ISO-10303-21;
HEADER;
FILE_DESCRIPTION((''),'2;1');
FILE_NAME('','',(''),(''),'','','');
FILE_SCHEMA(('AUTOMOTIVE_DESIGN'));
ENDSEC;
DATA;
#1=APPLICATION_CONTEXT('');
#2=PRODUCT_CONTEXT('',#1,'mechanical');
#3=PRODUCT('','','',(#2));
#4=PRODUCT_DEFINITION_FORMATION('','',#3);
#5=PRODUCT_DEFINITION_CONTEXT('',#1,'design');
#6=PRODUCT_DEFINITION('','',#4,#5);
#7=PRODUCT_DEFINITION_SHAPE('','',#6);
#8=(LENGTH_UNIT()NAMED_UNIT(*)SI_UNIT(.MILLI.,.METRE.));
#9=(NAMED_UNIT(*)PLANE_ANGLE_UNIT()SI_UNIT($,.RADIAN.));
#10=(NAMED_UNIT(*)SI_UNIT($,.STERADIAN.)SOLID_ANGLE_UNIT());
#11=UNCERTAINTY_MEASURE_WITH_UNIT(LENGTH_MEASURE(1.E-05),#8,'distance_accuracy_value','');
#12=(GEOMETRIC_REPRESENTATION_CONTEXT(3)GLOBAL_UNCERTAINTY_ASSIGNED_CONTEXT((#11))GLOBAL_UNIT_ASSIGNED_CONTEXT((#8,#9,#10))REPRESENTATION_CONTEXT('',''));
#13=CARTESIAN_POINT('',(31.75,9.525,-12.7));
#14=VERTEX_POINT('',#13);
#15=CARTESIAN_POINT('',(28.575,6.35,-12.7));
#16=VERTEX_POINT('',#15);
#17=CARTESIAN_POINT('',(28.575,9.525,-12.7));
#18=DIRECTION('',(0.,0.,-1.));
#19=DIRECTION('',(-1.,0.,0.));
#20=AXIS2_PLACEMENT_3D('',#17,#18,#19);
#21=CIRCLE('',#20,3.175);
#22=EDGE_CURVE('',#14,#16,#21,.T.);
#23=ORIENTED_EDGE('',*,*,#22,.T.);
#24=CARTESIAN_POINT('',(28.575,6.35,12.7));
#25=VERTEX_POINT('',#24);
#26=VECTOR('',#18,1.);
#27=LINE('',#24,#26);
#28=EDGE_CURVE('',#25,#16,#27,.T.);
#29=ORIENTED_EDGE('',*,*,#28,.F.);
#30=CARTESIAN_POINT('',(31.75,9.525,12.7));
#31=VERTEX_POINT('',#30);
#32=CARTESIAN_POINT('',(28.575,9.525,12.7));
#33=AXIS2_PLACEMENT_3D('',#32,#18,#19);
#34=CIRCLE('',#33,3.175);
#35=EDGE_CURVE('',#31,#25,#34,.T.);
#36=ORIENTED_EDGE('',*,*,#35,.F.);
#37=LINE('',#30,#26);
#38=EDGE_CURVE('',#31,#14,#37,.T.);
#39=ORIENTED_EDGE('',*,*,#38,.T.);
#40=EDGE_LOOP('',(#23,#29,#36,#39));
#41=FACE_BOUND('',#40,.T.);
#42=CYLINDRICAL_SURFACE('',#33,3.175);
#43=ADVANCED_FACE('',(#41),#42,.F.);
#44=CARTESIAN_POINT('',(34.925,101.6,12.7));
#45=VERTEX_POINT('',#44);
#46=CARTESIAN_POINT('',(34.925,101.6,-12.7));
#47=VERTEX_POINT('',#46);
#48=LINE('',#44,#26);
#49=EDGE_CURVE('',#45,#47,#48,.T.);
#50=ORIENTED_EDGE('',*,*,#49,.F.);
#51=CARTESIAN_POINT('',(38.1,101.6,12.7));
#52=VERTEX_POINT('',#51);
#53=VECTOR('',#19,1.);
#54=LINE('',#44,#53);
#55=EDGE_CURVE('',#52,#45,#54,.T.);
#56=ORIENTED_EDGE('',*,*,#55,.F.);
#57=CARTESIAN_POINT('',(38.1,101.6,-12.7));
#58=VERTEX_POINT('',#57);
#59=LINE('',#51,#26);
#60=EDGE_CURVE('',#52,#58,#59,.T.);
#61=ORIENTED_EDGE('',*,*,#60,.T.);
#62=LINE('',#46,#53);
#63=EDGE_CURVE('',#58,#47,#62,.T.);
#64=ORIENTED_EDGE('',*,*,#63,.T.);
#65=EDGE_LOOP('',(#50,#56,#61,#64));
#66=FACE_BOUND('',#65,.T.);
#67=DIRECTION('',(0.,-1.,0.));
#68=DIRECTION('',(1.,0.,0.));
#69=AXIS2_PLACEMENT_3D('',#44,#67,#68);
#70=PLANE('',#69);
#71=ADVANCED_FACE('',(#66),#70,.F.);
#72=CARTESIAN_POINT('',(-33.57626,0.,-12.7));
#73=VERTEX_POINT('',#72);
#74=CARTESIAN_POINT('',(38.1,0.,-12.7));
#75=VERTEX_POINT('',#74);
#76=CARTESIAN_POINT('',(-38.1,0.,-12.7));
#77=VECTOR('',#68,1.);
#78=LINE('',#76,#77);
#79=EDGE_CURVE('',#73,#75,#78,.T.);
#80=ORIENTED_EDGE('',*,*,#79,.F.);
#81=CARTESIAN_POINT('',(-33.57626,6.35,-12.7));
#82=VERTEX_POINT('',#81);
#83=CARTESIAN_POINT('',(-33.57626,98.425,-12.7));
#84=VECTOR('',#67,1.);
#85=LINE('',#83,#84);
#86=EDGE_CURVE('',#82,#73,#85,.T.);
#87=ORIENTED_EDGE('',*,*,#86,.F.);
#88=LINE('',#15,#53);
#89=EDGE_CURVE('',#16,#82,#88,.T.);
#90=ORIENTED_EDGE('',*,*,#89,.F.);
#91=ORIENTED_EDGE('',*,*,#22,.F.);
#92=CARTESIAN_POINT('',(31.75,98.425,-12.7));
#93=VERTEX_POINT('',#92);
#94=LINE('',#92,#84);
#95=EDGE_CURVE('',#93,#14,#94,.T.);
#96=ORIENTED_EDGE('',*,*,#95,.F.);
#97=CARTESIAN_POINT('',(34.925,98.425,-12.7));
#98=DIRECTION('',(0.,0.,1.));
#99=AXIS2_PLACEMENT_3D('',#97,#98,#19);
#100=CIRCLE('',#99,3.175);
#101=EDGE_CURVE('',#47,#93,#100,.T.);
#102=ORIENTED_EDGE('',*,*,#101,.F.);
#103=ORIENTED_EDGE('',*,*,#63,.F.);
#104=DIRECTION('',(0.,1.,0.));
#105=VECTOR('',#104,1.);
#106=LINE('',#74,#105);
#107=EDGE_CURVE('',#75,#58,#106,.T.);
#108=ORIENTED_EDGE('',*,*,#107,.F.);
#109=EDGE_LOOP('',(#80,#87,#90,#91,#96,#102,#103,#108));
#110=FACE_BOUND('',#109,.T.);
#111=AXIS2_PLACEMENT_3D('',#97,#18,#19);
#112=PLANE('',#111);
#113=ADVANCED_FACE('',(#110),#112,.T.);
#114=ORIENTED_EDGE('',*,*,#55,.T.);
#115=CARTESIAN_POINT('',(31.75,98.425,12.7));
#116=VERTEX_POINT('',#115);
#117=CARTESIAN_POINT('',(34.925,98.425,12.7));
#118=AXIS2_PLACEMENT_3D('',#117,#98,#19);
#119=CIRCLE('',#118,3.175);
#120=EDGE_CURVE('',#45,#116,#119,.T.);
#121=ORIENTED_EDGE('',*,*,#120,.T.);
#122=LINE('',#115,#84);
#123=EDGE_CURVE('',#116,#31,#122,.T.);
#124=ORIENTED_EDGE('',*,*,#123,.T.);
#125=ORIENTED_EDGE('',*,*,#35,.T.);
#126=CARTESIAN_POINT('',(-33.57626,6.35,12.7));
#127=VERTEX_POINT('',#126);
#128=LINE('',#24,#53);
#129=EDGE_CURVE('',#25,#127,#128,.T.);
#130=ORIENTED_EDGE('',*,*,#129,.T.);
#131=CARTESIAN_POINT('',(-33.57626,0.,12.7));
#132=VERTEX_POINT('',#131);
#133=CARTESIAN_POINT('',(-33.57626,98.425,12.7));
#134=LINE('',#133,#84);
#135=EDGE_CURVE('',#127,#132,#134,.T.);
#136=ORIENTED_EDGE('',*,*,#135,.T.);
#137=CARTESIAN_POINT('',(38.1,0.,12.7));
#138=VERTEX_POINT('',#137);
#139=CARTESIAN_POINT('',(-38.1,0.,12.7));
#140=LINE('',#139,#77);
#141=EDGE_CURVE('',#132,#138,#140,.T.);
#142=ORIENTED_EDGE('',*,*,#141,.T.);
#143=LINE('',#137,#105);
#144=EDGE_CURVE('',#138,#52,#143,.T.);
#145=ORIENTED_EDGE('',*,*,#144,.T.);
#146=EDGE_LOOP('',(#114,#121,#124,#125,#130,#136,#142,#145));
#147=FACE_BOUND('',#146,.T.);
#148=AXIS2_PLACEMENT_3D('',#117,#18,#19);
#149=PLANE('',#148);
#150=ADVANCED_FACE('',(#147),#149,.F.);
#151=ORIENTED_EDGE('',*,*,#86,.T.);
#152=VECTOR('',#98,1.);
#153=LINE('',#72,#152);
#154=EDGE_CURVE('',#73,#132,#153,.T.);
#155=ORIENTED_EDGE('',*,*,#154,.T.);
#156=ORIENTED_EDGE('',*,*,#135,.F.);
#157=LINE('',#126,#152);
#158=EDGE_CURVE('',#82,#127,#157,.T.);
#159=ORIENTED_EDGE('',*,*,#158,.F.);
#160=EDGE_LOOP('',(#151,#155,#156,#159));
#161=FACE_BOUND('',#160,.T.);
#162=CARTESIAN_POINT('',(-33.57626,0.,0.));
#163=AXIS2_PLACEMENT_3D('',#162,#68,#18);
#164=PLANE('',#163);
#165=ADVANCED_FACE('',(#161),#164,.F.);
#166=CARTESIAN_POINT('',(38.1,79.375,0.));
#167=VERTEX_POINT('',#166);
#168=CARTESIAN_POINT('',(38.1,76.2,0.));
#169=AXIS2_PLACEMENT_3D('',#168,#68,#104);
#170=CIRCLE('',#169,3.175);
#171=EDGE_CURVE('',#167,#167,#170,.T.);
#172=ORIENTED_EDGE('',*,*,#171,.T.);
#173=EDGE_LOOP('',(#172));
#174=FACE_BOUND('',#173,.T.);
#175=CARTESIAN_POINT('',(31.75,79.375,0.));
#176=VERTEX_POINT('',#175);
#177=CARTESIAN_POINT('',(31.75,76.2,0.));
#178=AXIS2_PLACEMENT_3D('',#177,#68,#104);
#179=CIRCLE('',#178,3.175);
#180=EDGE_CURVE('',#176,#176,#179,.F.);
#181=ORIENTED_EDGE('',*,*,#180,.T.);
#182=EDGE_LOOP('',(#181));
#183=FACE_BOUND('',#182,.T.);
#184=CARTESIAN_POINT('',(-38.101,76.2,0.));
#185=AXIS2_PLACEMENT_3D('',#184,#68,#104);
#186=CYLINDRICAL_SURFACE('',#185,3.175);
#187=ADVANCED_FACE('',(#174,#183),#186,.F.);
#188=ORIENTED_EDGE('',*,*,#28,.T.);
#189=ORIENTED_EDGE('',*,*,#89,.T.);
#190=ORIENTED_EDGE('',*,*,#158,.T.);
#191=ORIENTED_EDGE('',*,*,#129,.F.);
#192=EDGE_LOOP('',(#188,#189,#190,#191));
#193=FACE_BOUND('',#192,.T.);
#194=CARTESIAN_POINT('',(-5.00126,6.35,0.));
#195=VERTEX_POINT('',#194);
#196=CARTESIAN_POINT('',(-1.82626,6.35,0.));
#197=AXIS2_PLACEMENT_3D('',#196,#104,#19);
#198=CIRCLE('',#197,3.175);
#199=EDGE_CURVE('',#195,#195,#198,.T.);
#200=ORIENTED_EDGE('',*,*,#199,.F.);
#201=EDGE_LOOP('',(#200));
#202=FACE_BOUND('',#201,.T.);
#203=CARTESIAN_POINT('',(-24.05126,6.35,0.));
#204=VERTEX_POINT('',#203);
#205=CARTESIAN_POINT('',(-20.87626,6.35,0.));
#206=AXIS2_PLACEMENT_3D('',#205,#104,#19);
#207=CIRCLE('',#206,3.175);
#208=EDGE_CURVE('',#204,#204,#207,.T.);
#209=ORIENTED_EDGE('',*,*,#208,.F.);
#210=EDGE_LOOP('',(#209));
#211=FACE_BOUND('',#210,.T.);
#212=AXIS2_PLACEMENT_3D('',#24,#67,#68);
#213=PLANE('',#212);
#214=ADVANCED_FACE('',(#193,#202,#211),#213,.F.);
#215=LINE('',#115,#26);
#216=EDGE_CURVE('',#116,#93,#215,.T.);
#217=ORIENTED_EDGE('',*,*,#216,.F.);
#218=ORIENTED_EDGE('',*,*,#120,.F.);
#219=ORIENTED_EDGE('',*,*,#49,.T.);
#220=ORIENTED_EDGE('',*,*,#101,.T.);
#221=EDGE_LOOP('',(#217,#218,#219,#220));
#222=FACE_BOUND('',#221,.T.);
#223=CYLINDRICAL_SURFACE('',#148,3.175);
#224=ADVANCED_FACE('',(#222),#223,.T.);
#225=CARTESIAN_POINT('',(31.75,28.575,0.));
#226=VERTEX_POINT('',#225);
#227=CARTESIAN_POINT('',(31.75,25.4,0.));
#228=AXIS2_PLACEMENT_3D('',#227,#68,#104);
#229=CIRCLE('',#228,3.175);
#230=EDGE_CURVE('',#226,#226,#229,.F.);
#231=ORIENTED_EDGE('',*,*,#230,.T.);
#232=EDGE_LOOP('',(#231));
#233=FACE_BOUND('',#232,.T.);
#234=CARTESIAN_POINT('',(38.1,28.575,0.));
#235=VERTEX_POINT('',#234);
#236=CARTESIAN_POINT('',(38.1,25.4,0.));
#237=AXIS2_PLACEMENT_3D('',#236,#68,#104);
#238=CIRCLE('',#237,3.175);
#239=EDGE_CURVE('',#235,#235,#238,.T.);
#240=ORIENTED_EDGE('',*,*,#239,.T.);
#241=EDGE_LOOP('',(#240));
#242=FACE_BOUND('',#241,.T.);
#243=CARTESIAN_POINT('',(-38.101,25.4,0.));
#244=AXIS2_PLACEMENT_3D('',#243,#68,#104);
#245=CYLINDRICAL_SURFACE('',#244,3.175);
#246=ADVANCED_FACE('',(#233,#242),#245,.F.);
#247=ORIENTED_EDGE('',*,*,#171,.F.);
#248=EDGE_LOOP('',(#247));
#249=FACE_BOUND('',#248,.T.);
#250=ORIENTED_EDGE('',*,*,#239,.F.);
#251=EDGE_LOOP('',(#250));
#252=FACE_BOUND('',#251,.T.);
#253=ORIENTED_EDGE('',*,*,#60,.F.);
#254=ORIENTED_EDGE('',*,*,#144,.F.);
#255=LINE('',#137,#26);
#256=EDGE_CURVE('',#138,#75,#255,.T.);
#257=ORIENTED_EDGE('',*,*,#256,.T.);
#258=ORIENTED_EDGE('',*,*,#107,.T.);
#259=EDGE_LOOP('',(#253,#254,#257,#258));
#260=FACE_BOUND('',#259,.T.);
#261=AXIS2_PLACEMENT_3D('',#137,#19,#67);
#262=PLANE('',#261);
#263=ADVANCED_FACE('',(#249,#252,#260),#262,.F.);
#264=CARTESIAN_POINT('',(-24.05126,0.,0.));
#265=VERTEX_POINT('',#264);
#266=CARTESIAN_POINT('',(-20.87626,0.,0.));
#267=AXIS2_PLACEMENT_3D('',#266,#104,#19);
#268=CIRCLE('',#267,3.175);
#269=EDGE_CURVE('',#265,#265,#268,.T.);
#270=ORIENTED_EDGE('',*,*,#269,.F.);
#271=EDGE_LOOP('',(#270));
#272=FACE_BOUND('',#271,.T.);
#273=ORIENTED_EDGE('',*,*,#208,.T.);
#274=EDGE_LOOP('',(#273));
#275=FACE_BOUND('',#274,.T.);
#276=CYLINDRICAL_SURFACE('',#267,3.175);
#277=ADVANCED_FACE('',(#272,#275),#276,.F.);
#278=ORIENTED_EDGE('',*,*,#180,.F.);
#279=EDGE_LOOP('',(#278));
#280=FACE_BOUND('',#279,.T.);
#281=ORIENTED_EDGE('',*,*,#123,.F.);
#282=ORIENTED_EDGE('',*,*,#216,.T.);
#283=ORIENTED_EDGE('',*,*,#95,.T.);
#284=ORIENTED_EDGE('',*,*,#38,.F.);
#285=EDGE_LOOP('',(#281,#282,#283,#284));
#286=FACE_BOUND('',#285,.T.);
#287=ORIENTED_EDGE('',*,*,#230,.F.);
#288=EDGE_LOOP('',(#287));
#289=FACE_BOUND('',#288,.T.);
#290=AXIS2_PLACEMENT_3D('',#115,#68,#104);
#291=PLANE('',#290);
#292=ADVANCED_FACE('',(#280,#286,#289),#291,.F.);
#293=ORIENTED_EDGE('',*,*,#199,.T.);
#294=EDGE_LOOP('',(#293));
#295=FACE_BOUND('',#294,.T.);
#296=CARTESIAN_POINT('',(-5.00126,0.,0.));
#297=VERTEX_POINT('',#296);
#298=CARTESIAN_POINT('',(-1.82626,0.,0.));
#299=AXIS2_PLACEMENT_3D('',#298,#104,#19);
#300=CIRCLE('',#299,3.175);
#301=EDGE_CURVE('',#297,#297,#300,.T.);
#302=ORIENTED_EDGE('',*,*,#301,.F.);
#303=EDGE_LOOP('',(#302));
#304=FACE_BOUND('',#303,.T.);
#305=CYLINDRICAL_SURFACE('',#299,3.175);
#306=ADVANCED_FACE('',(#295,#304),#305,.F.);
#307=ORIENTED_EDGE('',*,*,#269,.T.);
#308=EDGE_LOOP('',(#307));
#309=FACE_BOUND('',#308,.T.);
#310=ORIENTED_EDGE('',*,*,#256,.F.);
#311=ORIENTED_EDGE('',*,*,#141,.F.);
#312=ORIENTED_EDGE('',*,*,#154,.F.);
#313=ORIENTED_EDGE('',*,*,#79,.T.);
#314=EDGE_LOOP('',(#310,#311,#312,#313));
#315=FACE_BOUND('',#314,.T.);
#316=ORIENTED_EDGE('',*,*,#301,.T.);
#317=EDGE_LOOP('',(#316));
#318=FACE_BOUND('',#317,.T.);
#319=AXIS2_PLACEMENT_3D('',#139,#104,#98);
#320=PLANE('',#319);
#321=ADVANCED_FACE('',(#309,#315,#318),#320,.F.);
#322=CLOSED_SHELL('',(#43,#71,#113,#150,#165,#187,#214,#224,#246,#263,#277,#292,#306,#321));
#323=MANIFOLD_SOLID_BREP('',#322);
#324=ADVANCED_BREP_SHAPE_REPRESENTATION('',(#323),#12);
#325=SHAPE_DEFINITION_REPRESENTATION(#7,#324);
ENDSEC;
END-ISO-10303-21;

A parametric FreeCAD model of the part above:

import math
import FreeCAD as App
import Part
import Sketcher
from FreeCAD import Vector
Q = App.Units.Quantity


def add_polygon(sketch, points):
    """Adds a closed chain of lines whose ends are joined by coincident constraints."""
    first, n = sketch.GeometryCount, len(points)
    for a, b in zip(points, points[1:] + points[:1]):
        sketch.addGeometry(Part.LineSegment(App.Vector(*a, 0), App.Vector(*b, 0)), False)
    for i in range(n):
        sketch.addConstraint(Sketcher.Constraint("Coincident", first + i, 2, first + (i + 1) % n, 1))

doc = App.newDocument("Part")
body = doc.addObject("PartDesign::Body", "Body")

sketch1 = body.newObject("Sketcher::SketchObject", "Sketch")
sketch1.AttachmentSupport = (doc.getObject("XY_Plane"), [""])
sketch1.MapMode = "FlatFace"
sketch1.addGeometry([
    Part.LineSegment(Vector(-38.1, 0, 0), Vector(38.1, 0, 0)),
    Part.LineSegment(Vector(38.1, 0, 0), Vector(38.1, 101.6, 0)),
    Part.LineSegment(Vector(38.1, 101.6, 0), Vector(34.9, 101.6, 0)),
    Part.ArcOfCircle(Part.Circle(Vector(34.9, 98.4, 0), Vector(0, 0, 1), 3.2), math.radians(90), math.radians(180)),
    Part.LineSegment(Vector(31.8, 98.4, 0), Vector(31.8, 9.5, 0)),
    Part.ArcOfCircle(Part.Circle(Vector(28.6, 9.5, 0), Vector(0, 0, 1), 3.2), math.radians(-90), math.radians(0)),
    Part.LineSegment(Vector(28.6, 6.3, 0), Vector(-34.9, 6.3, 0)),
    Part.ArcOfCircle(Part.Circle(Vector(-34.9, 3.2, 0), Vector(0, 0, 1), 3.2), math.radians(90), math.radians(180)),
    Part.LineSegment(Vector(-38.1, 3.2, 0), Vector(-38.1, 0, 0)),
], False)
sketch1.addConstraint([
    Sketcher.Constraint("Coincident", 0, 2, 1, 1),
    Sketcher.Constraint("Coincident", 1, 2, 2, 1),
    Sketcher.Constraint("Tangent", 2, 2, 3, 1),
    Sketcher.Constraint("Tangent", 3, 2, 4, 1),
    Sketcher.Constraint("Tangent", 4, 2, 5, 2),
    Sketcher.Constraint("Tangent", 5, 1, 6, 1),
    Sketcher.Constraint("Tangent", 6, 2, 7, 1),
    Sketcher.Constraint("Tangent", 7, 2, 8, 1),
    Sketcher.Constraint("Coincident", 8, 2, 0, 1),
    Sketcher.Constraint("Horizontal", 0),
    Sketcher.Constraint("Vertical", 1),
    Sketcher.Constraint("Horizontal", 2),
    Sketcher.Constraint("Vertical", 4),
    Sketcher.Constraint("Horizontal", 6),
    Sketcher.Constraint("Vertical", 8),
    Sketcher.Constraint("Equal", 3, 5),
    Sketcher.Constraint("Equal", 5, 7),
    Sketcher.Constraint("Symmetric", 0, 2, 8, 2, -1, 1),
    Sketcher.Constraint("Equal", 2, 8),
    Sketcher.Constraint("DistanceX", 0, 1, 0, 2, Q("3 in")),
    Sketcher.Constraint("DistanceY", 1, 1, 1, 2, Q("4 in")),
    Sketcher.Constraint("DistanceX", 6, 2, 6, 1, Q("2.5 in")),
    Sketcher.Constraint("Radius", 3, Q("0.125 in")),
])
pad1 = body.newObject("PartDesign::Pad", "Pad")
pad1.Profile = sketch1
pad1.Length = Q("1 in")
pad1.Midplane = True

sketch2 = body.newObject("Sketcher::SketchObject", "Sketch001")
sketch2.AttachmentSupport = (doc.getObject("YZ_Plane"), [""])
sketch2.MapMode = "FlatFace"
sketch2.AttachmentOffset = App.Placement(Vector(0, 0, 1.5 * 25.4), App.Rotation())
sketch2.addGeometry(Part.Circle(Vector(76.2, 0, 0), Vector(0, 0, 1), 3.2), False)
sketch2.addConstraint([
    Sketcher.Constraint("PointOnObject", 0, 3, -1),
    Sketcher.Constraint("Diameter", 0, Q("0.25 in")),
    Sketcher.Constraint("DistanceX", -1, 1, 0, 3, Q("3 in")),
])
pocket1 = body.newObject("PartDesign::Pocket", "Pocket")
pocket1.Profile = sketch2
pocket1.Type = "UpToFirst"

sketch3 = body.newObject("Sketcher::SketchObject", "Sketch002")
sketch3.AttachmentSupport = (doc.getObject("YZ_Plane"), [""])
sketch3.MapMode = "FlatFace"
sketch3.AttachmentOffset = App.Placement(Vector(0, 0, 1.5 * 25.4), App.Rotation())
sketch3.addGeometry(Part.Circle(Vector(25.4, 0, 0), Vector(0, 0, 1), 3.2), False)
sketch3.addConstraint([
    Sketcher.Constraint("PointOnObject", 0, 3, -1),
    Sketcher.Constraint("Diameter", 0, Q("0.25 in")),
    Sketcher.Constraint("DistanceX", -1, 1, 0, 3, Q("1 in")),
])
pocket2 = body.newObject("PartDesign::Pocket", "Pocket001")
pocket2.Profile = sketch3
pocket2.Type = "UpToFirst"

sketch4 = body.newObject("Sketcher::SketchObject", "Sketch003")
sketch4.AttachmentSupport = (doc.getObject("YZ_Plane"), [""])
sketch4.MapMode = "FlatFace"
sketch4.AttachmentOffset = App.Placement(Vector(0, 0, -1.5 * 25.4), App.Rotation())
add_polygon(sketch4, [(9, -13), (0, -13), (0, 16), (9, 16)])
sketch4.addConstraint([
    Sketcher.Constraint("Horizontal", 0),
    Sketcher.Constraint("Vertical", 1),
    Sketcher.Constraint("Horizontal", 2),
    Sketcher.Constraint("Vertical", 3),
    Sketcher.Constraint("PointOnObject", 0, 2, -2),
    Sketcher.Constraint("DistanceY", 0, 2, -1, 1, Q("0.5 in")),
    Sketcher.Constraint("DistanceX", 0, 2, 0, 1, 9.150355),
    Sketcher.Constraint("DistanceY", 1, 1, 1, 2, 28.507373),
])
pocket3 = body.newObject("PartDesign::Pocket", "Pocket002")
pocket3.Profile = sketch4
pocket3.Length = Q("0.1781 in")
pocket3.Reversed = True

sketch5 = body.newObject("Sketcher::SketchObject", "Sketch004")
sketch5.AttachmentSupport = (doc.getObject("XZ_Plane"), [""])
sketch5.MapMode = "FlatFace"
sketch5.AttachmentOffset = App.Placement(Vector(0, 0, -0.25 * 25.4), App.Rotation())
sketch5.addGeometry([
    Part.Circle(Vector(-1.8, 0, 0), Vector(0, 0, 1), 3.2),
    Part.Circle(Vector(-20.9, 0, 0), Vector(0, 0, 1), 3.2),
], False)
sketch5.addConstraint([
    Sketcher.Constraint("Equal", 0, 1),
    Sketcher.Constraint("PointOnObject", 0, 3, -1),
    Sketcher.Constraint("PointOnObject", 1, 3, -1),
    Sketcher.Constraint("Diameter", 0, Q("0.25 in")),
    Sketcher.Constraint("DistanceX", 1, 3, 0, 3, Q("0.75 in")),
    Sketcher.Constraint("DistanceX", 0, 3, -1, 1, Q("0.0719 in")),
])
pocket4 = body.newObject("PartDesign::Pocket", "Pocket003")
pocket4.Profile = sketch5
pocket4.Type = "ThroughAll"
pocket4.Reversed = True

doc.recompute()
